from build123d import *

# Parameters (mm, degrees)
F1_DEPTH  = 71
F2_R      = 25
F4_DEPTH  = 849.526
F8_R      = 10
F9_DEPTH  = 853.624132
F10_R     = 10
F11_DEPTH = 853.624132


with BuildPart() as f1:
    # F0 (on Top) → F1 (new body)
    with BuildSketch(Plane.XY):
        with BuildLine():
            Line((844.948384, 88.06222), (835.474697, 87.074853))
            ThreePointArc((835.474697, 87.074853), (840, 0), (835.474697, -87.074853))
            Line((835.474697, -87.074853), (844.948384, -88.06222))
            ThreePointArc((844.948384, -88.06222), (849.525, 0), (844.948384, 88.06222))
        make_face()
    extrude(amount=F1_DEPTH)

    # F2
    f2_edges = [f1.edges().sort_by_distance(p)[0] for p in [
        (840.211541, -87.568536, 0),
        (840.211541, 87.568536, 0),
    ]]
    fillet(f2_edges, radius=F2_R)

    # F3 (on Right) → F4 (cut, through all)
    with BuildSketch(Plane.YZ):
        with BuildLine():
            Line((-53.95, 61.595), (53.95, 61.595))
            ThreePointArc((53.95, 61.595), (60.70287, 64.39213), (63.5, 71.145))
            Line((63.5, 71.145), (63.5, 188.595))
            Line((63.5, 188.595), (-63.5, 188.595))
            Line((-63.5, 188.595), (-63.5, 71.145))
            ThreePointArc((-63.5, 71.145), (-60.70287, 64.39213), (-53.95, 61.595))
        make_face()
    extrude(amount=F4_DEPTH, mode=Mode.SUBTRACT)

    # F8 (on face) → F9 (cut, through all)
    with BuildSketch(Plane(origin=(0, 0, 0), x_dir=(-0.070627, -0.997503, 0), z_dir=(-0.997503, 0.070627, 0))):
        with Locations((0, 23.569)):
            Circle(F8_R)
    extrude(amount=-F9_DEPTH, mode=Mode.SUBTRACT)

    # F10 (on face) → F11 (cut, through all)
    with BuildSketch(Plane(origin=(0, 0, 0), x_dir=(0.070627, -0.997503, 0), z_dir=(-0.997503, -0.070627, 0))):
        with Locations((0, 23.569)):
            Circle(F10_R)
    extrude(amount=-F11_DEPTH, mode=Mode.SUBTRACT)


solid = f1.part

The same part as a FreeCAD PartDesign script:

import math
import FreeCAD as App
import Part
import Sketcher
Q = App.Units.Quantity


def edges_at(feature, points):
    """Names of the edges that pass closest to the given points."""
    edges = feature.Shape.Edges
    near = lambda p: min(range(len(edges)), key=lambda i: edges[i].distToShape(Part.Vertex(*p))[0])
    return sorted({f"Edge{near(p) + 1}" for p in points})

doc = App.newDocument("Part")
body = doc.addObject("PartDesign::Body", "Body")

sketch1 = body.newObject("Sketcher::SketchObject", "Sketch")
sketch1.AttachmentSupport = (doc.getObject("XY_Plane"), [""])
sketch1.MapMode = "FlatFace"
sketch1.addGeometry([
    Part.LineSegment(App.Vector(844.948384, 88.06222, 0), App.Vector(835.474697, 87.074853, 0)),
    Part.ArcOfCircle(Part.Circle(App.Vector(0.000072, 0, 0), App.Vector(0, 0, 1), 839.999928), math.radians(-5.95), math.radians(5.95)),
    Part.LineSegment(App.Vector(835.474697, -87.074853, 0), App.Vector(844.948384, -88.06222, 0)),
    Part.ArcOfCircle(Part.Circle(App.Vector(-0.000065, 0, 0), App.Vector(0, 0, 1), 849.525065), math.radians(-5.95), math.radians(5.95)),
], False)
sketch1.addConstraint([
    Sketcher.Constraint("Coincident", 0, 2, 1, 2),
    Sketcher.Constraint("Coincident", 1, 1, 2, 1),
    Sketcher.Constraint("Coincident", 2, 2, 3, 1),
    Sketcher.Constraint("Coincident", 3, 2, 0, 1),
    Sketcher.Constraint("Symmetric", 1, 3, 3, 3, -1, 1),
    Sketcher.Constraint("PointOnObject", 1, 3, -1),
    Sketcher.Constraint("Angle", 0, Q("-174.049998 deg")),
    Sketcher.Constraint("Angle", 2, Q("-5.950002 deg")),
    Sketcher.Constraint("Radius", 1, 839.999928),
    Sketcher.Constraint("Distance", 0, 9.525001),
    Sketcher.Constraint("Radius", 3, 849.525065),
    Sketcher.Constraint("DistanceY", 2, 2, -1, 1, 88.06222),
    Sketcher.Constraint("DistanceX", 3, 3, 0, 2, 835.474762),
])
pad1 = body.newObject("PartDesign::Pad", "Pad")
pad1.Profile = sketch1
pad1.Length = 71
doc.recompute()

fillet = body.newObject("PartDesign::Fillet", "Fillet")
fillet.Base = (pad1, edges_at(pad1, [(840.212, -87.569, 0), (840.212, 87.569, 0)]))
fillet.Radius = 25

sketch2 = body.newObject("Sketcher::SketchObject", "Sketch001")
sketch2.AttachmentSupport = (doc.getObject("YZ_Plane"), [""])
sketch2.MapMode = "FlatFace"
sketch2.addGeometry([
    Part.LineSegment(App.Vector(-54, 62, 0), App.Vector(54, 62, 0)),
    Part.ArcOfCircle(Part.Circle(App.Vector(54, 71, 0), App.Vector(0, 0, 1), 10), math.radians(-90), math.radians(0)),
    Part.LineSegment(App.Vector(64, 71, 0), App.Vector(64, 189, 0)),
    Part.LineSegment(App.Vector(64, 189, 0), App.Vector(-64, 189, 0)),
    Part.LineSegment(App.Vector(-64, 189, 0), App.Vector(-64, 71, 0)),
    Part.ArcOfCircle(Part.Circle(App.Vector(-54, 71, 0), App.Vector(0, 0, 1), 10), math.radians(180), math.radians(270)),
], False)
sketch2.addConstraint([
    Sketcher.Constraint("Tangent", 0, 2, 1, 1),
    Sketcher.Constraint("Tangent", 1, 2, 2, 1),
    Sketcher.Constraint("Coincident", 2, 2, 3, 1),
    Sketcher.Constraint("Coincident", 3, 2, 4, 1),
    Sketcher.Constraint("Tangent", 4, 2, 5, 1),
    Sketcher.Constraint("Tangent", 5, 2, 0, 1),
    Sketcher.Constraint("Horizontal", 0),
    Sketcher.Constraint("Vertical", 2),
    Sketcher.Constraint("Horizontal", 3),
    Sketcher.Constraint("Vertical", 4),
    Sketcher.Constraint("Equal", 1, 5),
    Sketcher.Constraint("DistanceX", 3, 2, 3, 1, 127.0),
    Sketcher.Constraint("Radius", 1, 9.549999),
    Sketcher.Constraint("DistanceY", 0, 2, 2, 2, 127.0),
    Sketcher.Constraint("DistanceX", -1, 1, 1, 2, 63.5),
    Sketcher.Constraint("DistanceY", -1, 1, 1, 3, 71.144999),
])
pocket1 = body.newObject("PartDesign::Pocket", "Pocket")
pocket1.Profile = sketch2
pocket1.Type = "ThroughAll"
pocket1.Reversed = True

sketch3 = body.newObject("Sketcher::SketchObject", "Sketch002")
sketch3.Placement = App.Placement(App.Vector(0, 0, 0), App.Rotation(App.Vector(-0.070626986, -0.997502796, 0), App.Vector(0, 0, 0.999999999), App.Vector(-0.997502796, 0.070626986, 0), "ZXY"))
sketch3.addGeometry(Part.Circle(App.Vector(0, 24, 0), App.Vector(0, 0, 1), 10), False)
sketch3.addConstraint([
    Sketcher.Constraint("PointOnObject", 0, 3, -2),
    Sketcher.Constraint("Diameter", 0, 20.0),
    Sketcher.Constraint("DistanceY", -1, 1, 0, 3, 23.569),
])
pocket2 = body.newObject("PartDesign::Pocket", "Pocket001")
pocket2.Profile = sketch3
pocket2.Type = "ThroughAll"

sketch4 = body.newObject("Sketcher::SketchObject", "Sketch003")
sketch4.Placement = App.Placement(App.Vector(0, 0, 0), App.Rotation(App.Vector(0.070626986, -0.997502796, 0), App.Vector(0, 0, 0.999999999), App.Vector(-0.997502796, -0.070626986, 0), "ZXY"))
sketch4.addGeometry(Part.Circle(App.Vector(0, 24, 0), App.Vector(0, 0, 1), 10), False)
sketch4.addConstraint([
    Sketcher.Constraint("PointOnObject", 0, 3, -2),
    Sketcher.Constraint("Diameter", 0, 20.0),
    Sketcher.Constraint("DistanceY", -1, 1, 0, 3, 23.569),
])
pocket3 = body.newObject("PartDesign::Pocket", "Pocket002")
pocket3.Profile = sketch4
pocket3.Type = "ThroughAll"

doc.recompute()
